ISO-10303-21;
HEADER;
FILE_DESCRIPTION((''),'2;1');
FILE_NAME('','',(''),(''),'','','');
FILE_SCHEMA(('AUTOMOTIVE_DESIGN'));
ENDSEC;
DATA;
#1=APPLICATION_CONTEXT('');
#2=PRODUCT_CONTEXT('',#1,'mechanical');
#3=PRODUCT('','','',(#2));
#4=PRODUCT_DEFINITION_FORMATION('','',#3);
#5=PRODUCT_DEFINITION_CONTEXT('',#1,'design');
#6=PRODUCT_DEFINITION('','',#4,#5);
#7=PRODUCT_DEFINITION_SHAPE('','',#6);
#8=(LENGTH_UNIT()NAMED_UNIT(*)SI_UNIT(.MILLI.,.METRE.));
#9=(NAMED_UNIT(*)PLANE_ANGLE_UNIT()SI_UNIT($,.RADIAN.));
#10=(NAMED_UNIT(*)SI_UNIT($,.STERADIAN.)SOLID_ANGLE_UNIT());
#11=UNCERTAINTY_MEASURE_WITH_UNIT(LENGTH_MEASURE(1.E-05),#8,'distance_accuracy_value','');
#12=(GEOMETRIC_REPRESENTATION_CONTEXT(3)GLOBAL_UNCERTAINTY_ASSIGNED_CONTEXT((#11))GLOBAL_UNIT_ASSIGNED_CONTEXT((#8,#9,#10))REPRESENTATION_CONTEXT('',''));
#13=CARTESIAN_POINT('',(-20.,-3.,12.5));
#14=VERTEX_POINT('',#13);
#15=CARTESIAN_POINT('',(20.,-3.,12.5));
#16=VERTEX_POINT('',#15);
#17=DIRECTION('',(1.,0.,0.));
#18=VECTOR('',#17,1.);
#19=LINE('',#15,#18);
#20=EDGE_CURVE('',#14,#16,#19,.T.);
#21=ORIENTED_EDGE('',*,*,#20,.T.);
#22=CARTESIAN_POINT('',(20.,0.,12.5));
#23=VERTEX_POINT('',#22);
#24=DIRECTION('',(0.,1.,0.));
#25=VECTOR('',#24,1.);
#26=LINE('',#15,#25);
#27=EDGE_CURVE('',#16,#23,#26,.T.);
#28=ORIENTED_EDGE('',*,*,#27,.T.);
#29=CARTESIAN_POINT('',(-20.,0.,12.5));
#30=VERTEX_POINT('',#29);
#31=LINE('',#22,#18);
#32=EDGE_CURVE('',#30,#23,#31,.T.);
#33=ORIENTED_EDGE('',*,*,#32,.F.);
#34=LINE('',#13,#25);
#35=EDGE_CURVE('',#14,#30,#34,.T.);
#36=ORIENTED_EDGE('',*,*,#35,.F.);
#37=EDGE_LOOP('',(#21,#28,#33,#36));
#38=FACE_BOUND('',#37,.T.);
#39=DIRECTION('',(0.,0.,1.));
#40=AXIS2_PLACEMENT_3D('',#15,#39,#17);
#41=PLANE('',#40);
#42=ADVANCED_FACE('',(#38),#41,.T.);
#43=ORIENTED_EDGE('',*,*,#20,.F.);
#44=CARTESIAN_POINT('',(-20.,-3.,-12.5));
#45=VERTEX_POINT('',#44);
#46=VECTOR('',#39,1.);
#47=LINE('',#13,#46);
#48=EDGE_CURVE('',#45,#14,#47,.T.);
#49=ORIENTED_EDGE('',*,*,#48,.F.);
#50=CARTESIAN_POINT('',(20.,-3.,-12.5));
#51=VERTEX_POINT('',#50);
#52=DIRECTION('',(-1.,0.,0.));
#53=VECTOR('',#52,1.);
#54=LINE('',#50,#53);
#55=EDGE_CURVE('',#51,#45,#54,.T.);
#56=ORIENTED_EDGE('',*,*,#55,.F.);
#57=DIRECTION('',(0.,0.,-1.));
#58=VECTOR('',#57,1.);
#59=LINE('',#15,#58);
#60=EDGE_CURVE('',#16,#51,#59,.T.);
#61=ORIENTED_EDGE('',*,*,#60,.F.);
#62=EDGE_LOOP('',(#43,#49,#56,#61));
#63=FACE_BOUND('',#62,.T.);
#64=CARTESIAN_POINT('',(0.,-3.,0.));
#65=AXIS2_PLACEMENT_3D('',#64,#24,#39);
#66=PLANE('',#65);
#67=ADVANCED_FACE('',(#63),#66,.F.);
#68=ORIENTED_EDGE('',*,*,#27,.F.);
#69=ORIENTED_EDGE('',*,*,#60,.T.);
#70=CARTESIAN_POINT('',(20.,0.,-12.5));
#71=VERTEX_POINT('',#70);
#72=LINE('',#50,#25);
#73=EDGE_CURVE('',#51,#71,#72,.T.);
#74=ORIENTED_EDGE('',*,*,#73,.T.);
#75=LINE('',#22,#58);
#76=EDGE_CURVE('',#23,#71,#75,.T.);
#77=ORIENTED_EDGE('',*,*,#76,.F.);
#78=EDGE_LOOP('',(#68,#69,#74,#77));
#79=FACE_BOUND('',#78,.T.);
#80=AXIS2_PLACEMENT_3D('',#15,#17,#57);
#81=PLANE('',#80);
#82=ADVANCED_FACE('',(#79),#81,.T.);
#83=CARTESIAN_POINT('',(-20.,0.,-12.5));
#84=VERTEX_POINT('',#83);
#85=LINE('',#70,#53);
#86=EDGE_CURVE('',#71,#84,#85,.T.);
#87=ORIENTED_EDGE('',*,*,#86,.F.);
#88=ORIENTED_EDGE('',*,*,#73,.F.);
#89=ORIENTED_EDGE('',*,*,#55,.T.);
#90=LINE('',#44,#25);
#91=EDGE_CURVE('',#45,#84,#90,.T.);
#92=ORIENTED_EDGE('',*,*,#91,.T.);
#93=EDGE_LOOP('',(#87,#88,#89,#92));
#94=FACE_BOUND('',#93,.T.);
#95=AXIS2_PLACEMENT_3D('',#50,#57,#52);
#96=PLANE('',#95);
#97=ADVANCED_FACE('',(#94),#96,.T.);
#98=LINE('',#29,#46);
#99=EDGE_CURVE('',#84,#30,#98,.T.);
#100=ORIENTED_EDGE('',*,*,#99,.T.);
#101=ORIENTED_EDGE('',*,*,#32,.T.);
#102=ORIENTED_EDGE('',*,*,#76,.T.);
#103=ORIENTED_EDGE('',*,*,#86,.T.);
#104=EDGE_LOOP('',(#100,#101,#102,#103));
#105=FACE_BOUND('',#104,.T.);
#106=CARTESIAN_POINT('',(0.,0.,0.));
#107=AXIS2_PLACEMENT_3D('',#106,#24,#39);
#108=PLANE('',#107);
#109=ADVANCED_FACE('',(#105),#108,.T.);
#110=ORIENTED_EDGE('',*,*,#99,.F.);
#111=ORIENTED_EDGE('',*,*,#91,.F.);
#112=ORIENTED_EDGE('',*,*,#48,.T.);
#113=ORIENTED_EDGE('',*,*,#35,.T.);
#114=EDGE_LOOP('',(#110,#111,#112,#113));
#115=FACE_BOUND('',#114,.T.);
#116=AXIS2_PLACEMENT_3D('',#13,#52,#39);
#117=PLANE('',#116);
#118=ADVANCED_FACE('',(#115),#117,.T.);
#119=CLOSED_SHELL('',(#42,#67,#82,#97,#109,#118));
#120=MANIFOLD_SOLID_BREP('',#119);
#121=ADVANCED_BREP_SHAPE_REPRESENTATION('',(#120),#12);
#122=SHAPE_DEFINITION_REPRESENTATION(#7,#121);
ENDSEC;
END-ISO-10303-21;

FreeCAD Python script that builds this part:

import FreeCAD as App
import Part
import Sketcher
from FreeCAD import Vector
Q = App.Units.Quantity


def add_polygon(sketch, points):
    """Adds a closed chain of lines whose ends are joined by coincident constraints."""
    first, n = sketch.GeometryCount, len(points)
    for a, b in zip(points, points[1:] + points[:1]):
        sketch.addGeometry(Part.LineSegment(App.Vector(*a, 0), App.Vector(*b, 0)), False)
    for i in range(n):
        sketch.addConstraint(Sketcher.Constraint("Coincident", first + i, 2, first + (i + 1) % n, 1))

doc = App.newDocument("Part")
body = doc.addObject("PartDesign::Body", "Body")

sketch1 = body.newObject("Sketcher::SketchObject", "Sketch")
sketch1.AttachmentSupport = (doc.getObject("XZ_Plane"), [""])
sketch1.MapMode = "FlatFace"
add_polygon(sketch1, [(-20, -12), (-20, 12), (20, 12), (20, -12)])
sketch1.addConstraint(Sketcher.Constraint("Vertical", 0))
sketch1.addConstraint(Sketcher.Constraint("Horizontal", 1))
sketch1.addConstraint(Sketcher.Constraint("Vertical", 2))
sketch1.addConstraint(Sketcher.Constraint("Horizontal", 3))
sketch1.addConstraint(Sketcher.Constraint("Symmetric", 0, 2, 2, 2, -1, 1))
sketch1.addConstraint(Sketcher.Constraint("DistanceX", 1, 1, 1, 2, Q("40 mm")))
sketch1.addConstraint(Sketcher.Constraint("DistanceY", 0, 1, 0, 2, Q("25 mm")))
pad1 = body.newObject("PartDesign::Pad", "Pad")
pad1.Profile = sketch1
pad1.Length = 3

doc.recompute()
